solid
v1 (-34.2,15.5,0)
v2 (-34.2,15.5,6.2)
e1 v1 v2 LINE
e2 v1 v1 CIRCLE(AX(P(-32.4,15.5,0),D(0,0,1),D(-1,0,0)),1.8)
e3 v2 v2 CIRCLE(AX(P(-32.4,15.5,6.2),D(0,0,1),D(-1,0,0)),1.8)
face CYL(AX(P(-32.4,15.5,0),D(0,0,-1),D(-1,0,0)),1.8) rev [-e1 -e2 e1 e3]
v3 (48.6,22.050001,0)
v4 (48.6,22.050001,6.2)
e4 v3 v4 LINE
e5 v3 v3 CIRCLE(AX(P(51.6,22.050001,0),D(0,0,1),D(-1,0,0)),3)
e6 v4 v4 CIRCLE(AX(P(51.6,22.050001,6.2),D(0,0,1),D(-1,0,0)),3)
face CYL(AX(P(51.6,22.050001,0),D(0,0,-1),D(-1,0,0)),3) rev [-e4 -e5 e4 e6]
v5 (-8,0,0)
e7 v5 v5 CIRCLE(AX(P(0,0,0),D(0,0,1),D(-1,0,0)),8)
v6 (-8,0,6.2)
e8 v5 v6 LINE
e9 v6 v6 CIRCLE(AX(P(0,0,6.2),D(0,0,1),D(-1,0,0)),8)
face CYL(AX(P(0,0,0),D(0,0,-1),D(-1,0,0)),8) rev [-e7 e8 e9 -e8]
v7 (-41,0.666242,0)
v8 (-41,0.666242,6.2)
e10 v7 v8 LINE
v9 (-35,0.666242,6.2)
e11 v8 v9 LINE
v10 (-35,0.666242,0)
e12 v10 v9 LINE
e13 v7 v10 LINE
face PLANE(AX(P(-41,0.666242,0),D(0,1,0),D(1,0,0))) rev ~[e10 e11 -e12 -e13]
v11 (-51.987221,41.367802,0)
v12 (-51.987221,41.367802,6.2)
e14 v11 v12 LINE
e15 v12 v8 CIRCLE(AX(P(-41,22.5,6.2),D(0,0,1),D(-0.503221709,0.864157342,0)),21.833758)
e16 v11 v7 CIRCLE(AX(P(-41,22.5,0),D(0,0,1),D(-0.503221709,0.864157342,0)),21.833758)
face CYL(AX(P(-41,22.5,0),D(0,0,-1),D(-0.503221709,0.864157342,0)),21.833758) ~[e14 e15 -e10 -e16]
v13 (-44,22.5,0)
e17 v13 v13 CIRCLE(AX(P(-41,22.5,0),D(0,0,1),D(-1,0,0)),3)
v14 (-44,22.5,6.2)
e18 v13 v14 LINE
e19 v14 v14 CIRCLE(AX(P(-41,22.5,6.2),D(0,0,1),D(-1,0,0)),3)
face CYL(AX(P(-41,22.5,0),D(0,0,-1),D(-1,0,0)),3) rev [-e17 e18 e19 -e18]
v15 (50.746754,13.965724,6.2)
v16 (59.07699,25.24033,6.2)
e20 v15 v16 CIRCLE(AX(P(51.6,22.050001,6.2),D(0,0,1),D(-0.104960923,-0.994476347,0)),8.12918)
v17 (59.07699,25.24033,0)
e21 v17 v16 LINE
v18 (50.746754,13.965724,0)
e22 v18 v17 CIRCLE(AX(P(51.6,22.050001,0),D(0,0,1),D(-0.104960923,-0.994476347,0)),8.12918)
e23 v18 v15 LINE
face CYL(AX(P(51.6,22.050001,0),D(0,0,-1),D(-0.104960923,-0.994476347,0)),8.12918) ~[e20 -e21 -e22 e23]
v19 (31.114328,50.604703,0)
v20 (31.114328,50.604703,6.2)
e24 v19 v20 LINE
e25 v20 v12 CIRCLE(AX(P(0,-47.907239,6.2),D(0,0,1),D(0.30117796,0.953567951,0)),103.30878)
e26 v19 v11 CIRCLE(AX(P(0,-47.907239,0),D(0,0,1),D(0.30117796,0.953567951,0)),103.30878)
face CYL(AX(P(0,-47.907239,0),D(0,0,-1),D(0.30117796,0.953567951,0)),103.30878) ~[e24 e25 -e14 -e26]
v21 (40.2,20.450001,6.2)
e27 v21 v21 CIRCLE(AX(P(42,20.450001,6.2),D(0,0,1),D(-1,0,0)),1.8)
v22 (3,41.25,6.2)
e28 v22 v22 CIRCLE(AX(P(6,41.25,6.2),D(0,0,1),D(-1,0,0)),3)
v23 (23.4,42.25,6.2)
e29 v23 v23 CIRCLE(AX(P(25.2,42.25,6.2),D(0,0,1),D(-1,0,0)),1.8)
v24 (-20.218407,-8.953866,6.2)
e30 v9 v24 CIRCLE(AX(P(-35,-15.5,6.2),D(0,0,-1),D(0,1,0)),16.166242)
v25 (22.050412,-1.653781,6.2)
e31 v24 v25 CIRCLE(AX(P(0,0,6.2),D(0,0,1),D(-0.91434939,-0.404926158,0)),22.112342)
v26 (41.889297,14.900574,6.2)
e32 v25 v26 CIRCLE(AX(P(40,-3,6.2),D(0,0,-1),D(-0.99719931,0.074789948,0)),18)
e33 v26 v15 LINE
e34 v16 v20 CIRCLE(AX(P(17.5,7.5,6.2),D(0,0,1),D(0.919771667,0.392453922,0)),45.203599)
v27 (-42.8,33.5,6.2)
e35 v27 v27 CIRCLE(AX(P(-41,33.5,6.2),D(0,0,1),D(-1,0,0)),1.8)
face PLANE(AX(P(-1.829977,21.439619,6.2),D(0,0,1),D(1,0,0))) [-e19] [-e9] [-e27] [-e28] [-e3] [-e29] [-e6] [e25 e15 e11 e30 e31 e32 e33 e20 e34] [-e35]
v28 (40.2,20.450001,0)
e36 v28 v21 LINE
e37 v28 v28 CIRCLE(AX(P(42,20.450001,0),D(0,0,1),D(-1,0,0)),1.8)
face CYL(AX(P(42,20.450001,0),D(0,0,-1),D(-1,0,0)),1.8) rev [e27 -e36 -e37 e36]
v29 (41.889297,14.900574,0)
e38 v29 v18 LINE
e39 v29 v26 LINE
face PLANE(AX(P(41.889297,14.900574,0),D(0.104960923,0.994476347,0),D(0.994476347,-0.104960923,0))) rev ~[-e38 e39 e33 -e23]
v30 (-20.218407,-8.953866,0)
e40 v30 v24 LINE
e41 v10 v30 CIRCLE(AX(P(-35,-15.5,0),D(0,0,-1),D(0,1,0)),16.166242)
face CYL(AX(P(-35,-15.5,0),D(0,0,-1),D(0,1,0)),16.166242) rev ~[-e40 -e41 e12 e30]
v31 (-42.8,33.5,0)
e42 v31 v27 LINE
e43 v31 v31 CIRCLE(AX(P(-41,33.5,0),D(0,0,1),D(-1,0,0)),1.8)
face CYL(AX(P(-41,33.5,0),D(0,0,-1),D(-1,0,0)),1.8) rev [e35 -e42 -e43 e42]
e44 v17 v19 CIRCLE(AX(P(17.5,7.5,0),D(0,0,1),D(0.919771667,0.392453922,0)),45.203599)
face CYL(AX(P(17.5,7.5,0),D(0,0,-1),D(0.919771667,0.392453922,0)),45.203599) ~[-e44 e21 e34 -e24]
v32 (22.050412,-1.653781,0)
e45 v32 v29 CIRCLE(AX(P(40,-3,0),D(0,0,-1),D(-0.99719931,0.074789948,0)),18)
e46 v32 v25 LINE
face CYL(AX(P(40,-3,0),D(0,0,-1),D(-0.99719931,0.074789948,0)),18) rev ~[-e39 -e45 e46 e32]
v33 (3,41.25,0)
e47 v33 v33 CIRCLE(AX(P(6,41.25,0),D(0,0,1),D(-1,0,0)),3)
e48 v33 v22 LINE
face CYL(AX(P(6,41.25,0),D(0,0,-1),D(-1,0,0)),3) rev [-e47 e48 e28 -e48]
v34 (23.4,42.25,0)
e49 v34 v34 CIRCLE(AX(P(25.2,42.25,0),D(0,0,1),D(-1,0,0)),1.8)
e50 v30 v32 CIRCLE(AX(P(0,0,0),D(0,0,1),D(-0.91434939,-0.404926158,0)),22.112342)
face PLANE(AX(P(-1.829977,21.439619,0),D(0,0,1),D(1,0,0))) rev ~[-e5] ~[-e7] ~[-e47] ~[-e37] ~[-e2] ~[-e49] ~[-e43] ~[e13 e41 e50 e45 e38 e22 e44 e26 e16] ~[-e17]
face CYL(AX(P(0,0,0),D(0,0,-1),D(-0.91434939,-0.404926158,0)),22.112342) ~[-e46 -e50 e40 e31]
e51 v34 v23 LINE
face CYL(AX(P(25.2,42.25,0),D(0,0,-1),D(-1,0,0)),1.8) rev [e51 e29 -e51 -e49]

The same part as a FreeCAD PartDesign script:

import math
import FreeCAD as App
import Part
import Sketcher

V = App.Vector

doc = App.newDocument("Part")
body = doc.addObject("PartDesign::Body", "Body")

sketch1 = doc.addObject("Sketcher::SketchObject", "Sketch")
body.addObject(sketch1)
sketch1.AttachmentSupport = (doc.XY_Plane, [""])
sketch1.MapMode = "FlatFace"
sketch1.addGeometry([
    Part.LineSegment(V(41.889297, 14.900574, 0), V(50.746754, 13.965724, 0)),
    Part.ArcOfCircle(Part.Circle(V(51.6, 22.050001, 0), V(0, 0, 1), 8.12918), math.radians(-96.024915), math.radians(23.107276)),
    Part.ArcOfCircle(Part.Circle(V(17.5, 7.5, 0), V(0, 0, 1), 45.203599), math.radians(23.107276), math.radians(72.471632)),
    Part.ArcOfCircle(Part.Circle(V(0, -47.907239, 0), V(0, 0, 1), 103.30878), math.radians(72.471632), math.radians(120.213376)),
    Part.ArcOfCircle(Part.Circle(V(-41, 22.5, 0), V(0, 0, 1), 21.833758), math.radians(120.213376), math.radians(270)),
    Part.LineSegment(V(-41, 0.666242, 0), V(-35, 0.666242, 0)),
    Part.ArcOfCircle(Part.Circle(V(-35, -15.5, 0), V(0, 0, 1), 16.166242), math.radians(23.8865), math.radians(90)),
    Part.ArcOfCircle(Part.Circle(V(0, 0, 0), V(0, 0, 1), 22.112342), math.radians(-156.1135), math.radians(-4.289153)),
    Part.ArcOfCircle(Part.Circle(V(40, -3, 0), V(0, 0, 1), 18), math.radians(83.975085), math.radians(175.710847)),
    Part.Circle(V(0, 0, 0), V(0, 0, 1), 8),
    Part.Circle(V(-32.4, 15.5, 0), V(0, 0, 1), 1.8),
    Part.Circle(V(-41, 22.5, 0), V(0, 0, 1), 3),
    Part.Circle(V(-41, 33.5, 0), V(0, 0, 1), 1.8),
    Part.Circle(V(42, 20.450001, 0), V(0, 0, 1), 1.8),
    Part.Circle(V(51.6, 22.050001, 0), V(0, 0, 1), 3),
    Part.Circle(V(6, 41.25, 0), V(0, 0, 1), 3),
    Part.Circle(V(25.2, 42.25, 0), V(0, 0, 1), 1.8),
], False)
sketch1.addConstraint([
    Sketcher.Constraint("Tangent", 0, 2, 1, 1),
    Sketcher.Constraint("Tangent", 1, 2, 2, 1),
    Sketcher.Constraint("Tangent", 2, 2, 3, 1),
    Sketcher.Constraint("Tangent", 3, 2, 4, 1),
    Sketcher.Constraint("Tangent", 4, 2, 5, 1),
    Sketcher.Constraint("Tangent", 5, 2, 6, 2),
    Sketcher.Constraint("Tangent", 6, 1, 7, 1),
    Sketcher.Constraint("Tangent", 7, 2, 8, 2),
    Sketcher.Constraint("Tangent", 8, 1, 0, 1),
    Sketcher.Constraint("Horizontal", 5),
    Sketcher.Constraint("Coincident", 7, 3, -1, 1),
    Sketcher.Constraint("Coincident", 9, 3, -1, 1),
    Sketcher.Constraint("Coincident", 11, 3, 4, 3),
    Sketcher.Constraint("Coincident", 14, 3, 1, 3),
    Sketcher.Constraint("Equal", 10, 12),
    Sketcher.Constraint("Equal", 12, 13),
    Sketcher.Constraint("Equal", 11, 14),
    Sketcher.Constraint("Equal", 14, 15),
    Sketcher.Constraint("Equal", 13, 16),
    Sketcher.Constraint("PointOnObject", 3, 3, -2),
    Sketcher.Constraint("Vertical", 11, 3, 12, 3),
    Sketcher.Constraint("Diameter", 9, 16.0),
    Sketcher.Constraint("Diameter", 11, 6.0),
    Sketcher.Constraint("Radius", 8, 18.0),
    Sketcher.Constraint("Diameter", 10, 3.6),
    Sketcher.Constraint("DistanceX", 5, 1, 5, 2, 6.0),
    Sketcher.Constraint("DistanceX", 4, 3, -1, 1, 41.0),
    Sketcher.Constraint("DistanceX", -1, 1, 8, 3, 40.0),
    Sketcher.Constraint("DistanceY", 8, 3, -1, 1, 3.0),
    Sketcher.Constraint("DistanceX", -1, 1, 13, 3, 42.0),
    Sketcher.Constraint("DistanceX", -1, 1, 15, 3, 6.0),
    Sketcher.Constraint("DistanceY", 2, 3, 4, 3, 15.0),
    Sketcher.Constraint("DistanceY", 6, 3, 4, 3, 38.0),
    Sketcher.Constraint("DistanceY", 10, 3, 4, 3, 7.0),
    Sketcher.Constraint("DistanceY", 4, 3, 12, 3, 11.0),
    Sketcher.Constraint("DistanceY", 15, 3, 16, 3, 1.0),
    Sketcher.Constraint("DistanceX", -1, 1, 1, 3, 51.6),
    Sketcher.Constraint("DistanceX", -1, 1, 2, 3, 17.5),
    Sketcher.Constraint("DistanceY", -1, 1, 2, 3, 7.5),
    Sketcher.Constraint("DistanceX", 10, 3, -1, 1, 32.4),
    Sketcher.Constraint("DistanceX", -1, 1, 16, 3, 25.2),
    Sketcher.Constraint("Radius", 2, 45.203599),
    Sketcher.Constraint("DistanceY", 13, 3, 1, 3, 1.6),
    Sketcher.Constraint("DistanceY", 13, 3, 15, 3, 20.799999),
    Sketcher.Constraint("DistanceY", -1, 1, 1, 3, 22.050001),
])
pad1 = doc.addObject("PartDesign::Pad", "Pad")
body.addObject(pad1)
pad1.Profile = sketch1
pad1.Length = 6.2

doc.recompute()
